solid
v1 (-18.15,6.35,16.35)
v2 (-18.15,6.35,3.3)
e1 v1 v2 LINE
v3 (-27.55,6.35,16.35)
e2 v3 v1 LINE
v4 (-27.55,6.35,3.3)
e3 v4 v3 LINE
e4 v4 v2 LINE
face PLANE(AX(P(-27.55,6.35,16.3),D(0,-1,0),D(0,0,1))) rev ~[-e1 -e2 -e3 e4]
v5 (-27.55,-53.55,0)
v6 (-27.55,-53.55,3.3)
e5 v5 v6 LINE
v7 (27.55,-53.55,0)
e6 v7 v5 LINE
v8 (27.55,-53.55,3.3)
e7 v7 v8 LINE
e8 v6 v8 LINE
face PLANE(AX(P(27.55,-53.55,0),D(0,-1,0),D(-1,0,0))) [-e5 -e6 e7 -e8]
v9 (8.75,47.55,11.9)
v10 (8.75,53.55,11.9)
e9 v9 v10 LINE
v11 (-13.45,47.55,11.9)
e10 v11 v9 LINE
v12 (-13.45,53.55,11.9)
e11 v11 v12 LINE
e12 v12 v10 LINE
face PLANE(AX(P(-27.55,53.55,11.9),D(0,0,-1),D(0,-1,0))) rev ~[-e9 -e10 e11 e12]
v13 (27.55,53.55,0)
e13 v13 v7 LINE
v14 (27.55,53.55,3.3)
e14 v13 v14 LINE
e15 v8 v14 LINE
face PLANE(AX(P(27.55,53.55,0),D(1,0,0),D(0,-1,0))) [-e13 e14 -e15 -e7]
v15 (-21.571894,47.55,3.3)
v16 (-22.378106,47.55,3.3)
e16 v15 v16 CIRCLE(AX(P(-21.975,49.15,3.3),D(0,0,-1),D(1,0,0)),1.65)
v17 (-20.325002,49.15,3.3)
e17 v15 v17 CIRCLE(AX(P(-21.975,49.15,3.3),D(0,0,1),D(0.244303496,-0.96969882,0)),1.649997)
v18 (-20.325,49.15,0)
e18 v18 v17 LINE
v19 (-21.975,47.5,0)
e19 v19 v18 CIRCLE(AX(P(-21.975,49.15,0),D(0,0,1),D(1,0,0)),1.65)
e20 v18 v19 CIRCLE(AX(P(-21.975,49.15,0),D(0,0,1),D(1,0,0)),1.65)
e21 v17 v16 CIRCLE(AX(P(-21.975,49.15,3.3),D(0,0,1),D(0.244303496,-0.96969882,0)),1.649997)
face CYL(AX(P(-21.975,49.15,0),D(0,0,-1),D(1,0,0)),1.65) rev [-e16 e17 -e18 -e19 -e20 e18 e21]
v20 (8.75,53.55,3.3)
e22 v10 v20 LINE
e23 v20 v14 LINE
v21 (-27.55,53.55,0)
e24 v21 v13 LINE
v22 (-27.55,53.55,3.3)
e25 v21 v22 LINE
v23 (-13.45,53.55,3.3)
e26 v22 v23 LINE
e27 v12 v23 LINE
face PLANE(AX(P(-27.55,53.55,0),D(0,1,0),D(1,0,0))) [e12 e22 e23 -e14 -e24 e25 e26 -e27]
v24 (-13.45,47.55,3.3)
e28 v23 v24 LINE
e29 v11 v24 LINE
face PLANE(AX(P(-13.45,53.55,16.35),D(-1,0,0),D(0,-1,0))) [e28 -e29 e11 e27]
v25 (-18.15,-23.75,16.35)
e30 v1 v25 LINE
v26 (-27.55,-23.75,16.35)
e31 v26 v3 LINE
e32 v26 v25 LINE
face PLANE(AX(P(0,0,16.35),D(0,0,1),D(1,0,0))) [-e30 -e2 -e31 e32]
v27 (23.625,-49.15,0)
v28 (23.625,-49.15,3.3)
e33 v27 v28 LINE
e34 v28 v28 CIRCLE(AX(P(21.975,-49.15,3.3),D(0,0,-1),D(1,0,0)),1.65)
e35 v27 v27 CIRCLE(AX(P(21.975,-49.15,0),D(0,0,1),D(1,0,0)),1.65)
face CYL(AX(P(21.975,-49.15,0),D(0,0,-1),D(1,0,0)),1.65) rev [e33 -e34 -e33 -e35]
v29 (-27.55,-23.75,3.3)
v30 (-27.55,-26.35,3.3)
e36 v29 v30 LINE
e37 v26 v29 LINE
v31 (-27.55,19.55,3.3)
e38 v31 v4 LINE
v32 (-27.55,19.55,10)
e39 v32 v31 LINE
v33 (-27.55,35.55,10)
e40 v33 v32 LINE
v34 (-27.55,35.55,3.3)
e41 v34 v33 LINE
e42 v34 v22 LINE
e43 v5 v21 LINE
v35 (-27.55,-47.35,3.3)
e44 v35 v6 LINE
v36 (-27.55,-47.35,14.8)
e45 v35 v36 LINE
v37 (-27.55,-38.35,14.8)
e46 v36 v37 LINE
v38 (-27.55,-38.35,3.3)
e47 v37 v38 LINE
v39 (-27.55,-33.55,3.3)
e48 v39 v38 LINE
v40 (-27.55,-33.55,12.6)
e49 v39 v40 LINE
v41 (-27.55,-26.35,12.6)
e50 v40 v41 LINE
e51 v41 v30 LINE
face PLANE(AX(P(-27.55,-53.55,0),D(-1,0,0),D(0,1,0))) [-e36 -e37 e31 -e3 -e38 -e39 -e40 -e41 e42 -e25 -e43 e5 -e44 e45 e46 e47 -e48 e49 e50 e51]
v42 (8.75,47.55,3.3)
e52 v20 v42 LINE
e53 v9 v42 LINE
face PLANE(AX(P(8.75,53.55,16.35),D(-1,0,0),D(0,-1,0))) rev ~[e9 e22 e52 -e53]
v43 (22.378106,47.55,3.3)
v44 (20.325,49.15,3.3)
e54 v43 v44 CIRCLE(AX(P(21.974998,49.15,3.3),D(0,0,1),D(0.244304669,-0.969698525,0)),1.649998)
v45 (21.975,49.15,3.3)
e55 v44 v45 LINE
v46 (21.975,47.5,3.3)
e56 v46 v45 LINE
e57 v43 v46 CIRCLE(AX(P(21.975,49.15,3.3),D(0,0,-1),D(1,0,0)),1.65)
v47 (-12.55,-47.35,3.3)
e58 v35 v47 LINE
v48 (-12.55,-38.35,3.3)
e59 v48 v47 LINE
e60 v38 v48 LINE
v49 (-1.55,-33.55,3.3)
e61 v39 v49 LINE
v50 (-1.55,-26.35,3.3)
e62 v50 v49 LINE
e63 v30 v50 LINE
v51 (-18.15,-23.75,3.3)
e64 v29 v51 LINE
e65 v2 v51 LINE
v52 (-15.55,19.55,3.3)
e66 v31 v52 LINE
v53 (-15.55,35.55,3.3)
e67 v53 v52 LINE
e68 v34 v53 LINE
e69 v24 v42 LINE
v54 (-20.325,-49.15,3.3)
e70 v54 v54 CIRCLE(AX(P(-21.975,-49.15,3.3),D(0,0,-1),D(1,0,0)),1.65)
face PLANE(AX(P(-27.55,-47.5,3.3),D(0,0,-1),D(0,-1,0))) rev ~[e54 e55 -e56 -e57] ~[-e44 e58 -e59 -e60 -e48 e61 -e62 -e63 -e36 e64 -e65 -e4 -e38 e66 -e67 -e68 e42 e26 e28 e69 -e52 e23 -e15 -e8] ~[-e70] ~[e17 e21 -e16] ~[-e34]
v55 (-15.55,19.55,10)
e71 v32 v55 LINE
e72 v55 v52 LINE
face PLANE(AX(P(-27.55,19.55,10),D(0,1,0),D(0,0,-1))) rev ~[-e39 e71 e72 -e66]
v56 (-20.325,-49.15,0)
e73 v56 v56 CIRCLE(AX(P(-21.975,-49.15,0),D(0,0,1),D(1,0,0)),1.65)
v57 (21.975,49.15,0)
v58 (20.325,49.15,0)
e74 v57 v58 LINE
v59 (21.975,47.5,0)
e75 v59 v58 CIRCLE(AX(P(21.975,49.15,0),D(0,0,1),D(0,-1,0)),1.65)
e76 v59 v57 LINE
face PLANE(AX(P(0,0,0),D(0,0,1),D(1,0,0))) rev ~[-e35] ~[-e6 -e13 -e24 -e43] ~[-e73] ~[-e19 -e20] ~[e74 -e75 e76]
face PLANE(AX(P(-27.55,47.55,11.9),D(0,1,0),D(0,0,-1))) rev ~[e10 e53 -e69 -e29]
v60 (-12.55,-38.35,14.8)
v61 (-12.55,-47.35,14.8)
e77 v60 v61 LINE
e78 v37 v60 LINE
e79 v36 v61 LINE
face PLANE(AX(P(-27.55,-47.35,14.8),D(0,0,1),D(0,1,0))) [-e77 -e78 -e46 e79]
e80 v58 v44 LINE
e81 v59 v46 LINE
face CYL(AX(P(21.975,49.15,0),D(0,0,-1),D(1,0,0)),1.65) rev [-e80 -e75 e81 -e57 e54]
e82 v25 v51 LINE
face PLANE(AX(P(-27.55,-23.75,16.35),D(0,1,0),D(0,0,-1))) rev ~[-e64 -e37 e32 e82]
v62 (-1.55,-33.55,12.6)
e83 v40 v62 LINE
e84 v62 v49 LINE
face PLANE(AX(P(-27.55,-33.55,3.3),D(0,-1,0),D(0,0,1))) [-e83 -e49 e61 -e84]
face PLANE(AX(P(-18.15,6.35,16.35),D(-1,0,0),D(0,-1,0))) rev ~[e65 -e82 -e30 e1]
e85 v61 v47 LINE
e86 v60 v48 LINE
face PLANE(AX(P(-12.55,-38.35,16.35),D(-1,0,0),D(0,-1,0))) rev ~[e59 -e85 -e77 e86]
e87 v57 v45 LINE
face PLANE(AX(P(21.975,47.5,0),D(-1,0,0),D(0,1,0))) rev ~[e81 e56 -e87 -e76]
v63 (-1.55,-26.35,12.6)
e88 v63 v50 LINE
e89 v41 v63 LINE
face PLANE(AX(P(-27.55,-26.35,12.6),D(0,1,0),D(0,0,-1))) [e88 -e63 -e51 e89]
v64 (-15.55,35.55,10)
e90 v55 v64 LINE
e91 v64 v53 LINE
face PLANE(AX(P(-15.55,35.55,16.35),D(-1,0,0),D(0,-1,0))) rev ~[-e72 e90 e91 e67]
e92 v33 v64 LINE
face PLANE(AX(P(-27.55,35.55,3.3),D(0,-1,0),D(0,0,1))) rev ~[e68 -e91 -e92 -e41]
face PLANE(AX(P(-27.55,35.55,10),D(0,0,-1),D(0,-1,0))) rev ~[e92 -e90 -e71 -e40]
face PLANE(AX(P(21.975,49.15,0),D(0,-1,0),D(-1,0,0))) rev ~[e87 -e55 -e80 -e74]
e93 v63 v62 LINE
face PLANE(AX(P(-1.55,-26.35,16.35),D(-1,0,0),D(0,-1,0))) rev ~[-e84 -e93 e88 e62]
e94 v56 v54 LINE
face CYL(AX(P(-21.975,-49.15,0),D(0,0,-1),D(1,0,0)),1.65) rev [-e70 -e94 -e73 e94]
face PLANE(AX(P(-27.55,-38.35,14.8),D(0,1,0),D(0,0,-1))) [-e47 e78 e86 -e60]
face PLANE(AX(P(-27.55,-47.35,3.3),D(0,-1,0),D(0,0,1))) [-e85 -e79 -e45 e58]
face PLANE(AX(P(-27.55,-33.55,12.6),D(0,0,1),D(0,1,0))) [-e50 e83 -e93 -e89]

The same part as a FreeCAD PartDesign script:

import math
import FreeCAD as App
import Part
import Sketcher

V = App.Vector
Q = App.Units.Quantity


def add_polygon(sketch, points):
    """Adds a closed chain of lines whose ends are joined by coincident constraints."""
    first, n = sketch.GeometryCount, len(points)
    for a, b in zip(points, points[1:] + points[:1]):
        sketch.addGeometry(Part.LineSegment(App.Vector(*a, 0), App.Vector(*b, 0)), False)
    for i in range(n):
        sketch.addConstraint(Sketcher.Constraint("Coincident", first + i, 2, first + (i + 1) % n, 1))

doc = App.newDocument("Part")
body = doc.addObject("PartDesign::Body", "Body")

# Sketch on XY plane
sketch1 = doc.addObject("Sketcher::SketchObject", "Sketch")
body.addObject(sketch1)
sketch1.AttachmentSupport = (doc.XY_Plane, [""])
sketch1.MapMode = "FlatFace"
add_polygon(sketch1, [(-27.6, -53.5), (27.6, -53.5), (27.6, 53.5), (-27.6, 53.5)])  # lines 0-3
sketch1.addGeometry(Part.Circle(V(-22, -49.1, 0), V(0, 0, 1), 1.6), False)  # 4
sketch1.addGeometry(Part.Circle(V(22, -49.1, 0), V(0, 0, 1), 1.6), False)  # 5
sketch1.addGeometry(Part.LineSegment(V(22, 47.5, 0), V(22, 49.1, 0)), False)  # 6
sketch1.addGeometry(Part.LineSegment(V(22, 49.1, 0), V(20.3, 49.1, 0)), False)  # 7
sketch1.addGeometry(Part.ArcOfCircle(Part.Circle(V(22, 49.1, 0), V(0, 0, 1), 1.6), math.radians(-90), math.radians(180)), False)  # 8
sketch1.addGeometry(Part.Circle(V(-22, 49.1, 0), V(0, 0, 1), 1.6), False)  # 9
sketch1.addConstraint([
    Sketcher.Constraint("Coincident", 6, 2, 7, 1),
    Sketcher.Constraint("Coincident", 7, 2, 8, 2),
    Sketcher.Constraint("Coincident", 8, 1, 6, 1),
    Sketcher.Constraint("Horizontal", 0),
    Sketcher.Constraint("Vertical", 1),
    Sketcher.Constraint("Horizontal", 2),
    Sketcher.Constraint("Vertical", 3),
    Sketcher.Constraint("Vertical", 6),
    Sketcher.Constraint("Horizontal", 7),
    Sketcher.Constraint("Coincident", 6, 2, 8, 3),
    Sketcher.Constraint("Equal", 4, 5),
    Sketcher.Constraint("Equal", 5, 8),
    Sketcher.Constraint("Equal", 8, 9),
    Sketcher.Constraint("Symmetric", 4, 3, 8, 3, -1, 1),
    Sketcher.Constraint("Symmetric", 5, 3, 9, 3, -1, 1),
    Sketcher.Constraint("Symmetric", 0, 2, 2, 2, -1, 1),
    Sketcher.Constraint("Symmetric", 4, 3, 5, 3, -2),
    Sketcher.Constraint("Diameter", 4, Q("3.3 mm")),
    Sketcher.Constraint("DistanceX", 0, 1, 0, 2, Q("55.1 mm")),
    Sketcher.Constraint("DistanceY", 1, 1, 1, 2, Q("107.1 mm")),
    Sketcher.Constraint("DistanceY", -1, 1, 8, 1, Q("47.5 mm")),
    Sketcher.Constraint("DistanceX", 9, 3, 7, 2, Q("42.3 mm")),
])
pad1 = doc.addObject("PartDesign::Pad", "Pad")
body.addObject(pad1)
pad1.Profile = sketch1
pad1.Length = 16.35

# Sketch on YZ plane
sketch2 = doc.addObject("Sketcher::SketchObject", "Sketch001")
body.addObject(sketch2)
sketch2.AttachmentSupport = (doc.YZ_Plane, [""])
sketch2.MapMode = "FlatFace"
sketch2.AttachmentOffset = App.Placement(V(0, 0, -27.55), App.Rotation())
add_polygon(sketch2, [(53.5, 16.4), (53.5, 11.9), (47.5, 11.9), (47.5, 3.3), (35.5, 3.3), (35.5, 10), (19.6, 10), (19.6, 3.3), (6.3, 3.3), (6.3, 16.4)])  # lines 0-9
add_polygon(sketch2, [(-53.5, 16.4), (-23.8, 16.4), (-23.8, 3.3), (-26.4, 3.3), (-26.4, 12.6), (-33.5, 12.6), (-33.5, 3.3), (-38.4, 3.3), (-38.4, 14.8), (-47.4, 14.8), (-47.4, 3.3), (-53.5, 3.3)])  # lines 10-21
sketch2.addConstraint([
    Sketcher.Constraint("Vertical", 0),
    Sketcher.Constraint("Horizontal", 1),
    Sketcher.Constraint("Vertical", 2),
    Sketcher.Constraint("Horizontal", 3),
    Sketcher.Constraint("Vertical", 4),
    Sketcher.Constraint("Horizontal", 5),
    Sketcher.Constraint("Vertical", 6),
    Sketcher.Constraint("Horizontal", 7),
    Sketcher.Constraint("Vertical", 8),
    Sketcher.Constraint("Horizontal", 9),
    Sketcher.Constraint("Horizontal", 10),
    Sketcher.Constraint("Vertical", 11),
    Sketcher.Constraint("Horizontal", 12),
    Sketcher.Constraint("Vertical", 13),
    Sketcher.Constraint("Horizontal", 14),
    Sketcher.Constraint("Vertical", 15),
    Sketcher.Constraint("Horizontal", 16),
    Sketcher.Constraint("Vertical", 17),
    Sketcher.Constraint("Horizontal", 18),
    Sketcher.Constraint("Vertical", 19),
    Sketcher.Constraint("Horizontal", 20),
    Sketcher.Constraint("Vertical", 21),
    Sketcher.Constraint("Symmetric", 9, 2, 21, 2, -2),
    Sketcher.Constraint("Horizontal", 3, 2, 6, 2),
    Sketcher.Constraint("Horizontal", 7, 2, 11, 2),
    Sketcher.Constraint("Horizontal", 12, 2, 15, 2),
    Sketcher.Constraint("Horizontal", 16, 2, 19, 2),
    Sketcher.Constraint("DistanceX", 1, 2, 1, 1, Q("6 mm")),
    Sketcher.Constraint("DistanceX", 5, 2, 5, 1, Q("16 mm")),
    Sketcher.Constraint("DistanceX", 18, 2, 18, 1, Q("9 mm")),
    Sketcher.Constraint("DistanceX", 9, 1, 9, 2, Q("47.2 mm")),
    Sketcher.Constraint("DistanceX", 14, 2, 14, 1, Q("7.2 mm")),
    Sketcher.Constraint("DistanceX", 20, 2, 20, 1, Q("6.2 mm")),
    Sketcher.Constraint("DistanceY", 2, 2, 2, 1, Q("8.6 mm")),
    Sketcher.Constraint("DistanceY", 4, 1, 4, 2, Q("6.7 mm")),
    Sketcher.Constraint("DistanceY", 13, 1, 13, 2, Q("9.3 mm")),
    Sketcher.Constraint("DistanceY", 17, 1, 17, 2, Q("11.5 mm")),
    Sketcher.Constraint("DistanceX", 3, 2, 0, 2, Q("18 mm")),
    Sketcher.Constraint("DistanceX", 20, 2, 15, 2, Q("20 mm")),
    Sketcher.Constraint("DistanceY", -1, 1, 2, 2, Q("3.3 mm")),
    Sketcher.Constraint("DistanceX", 10, 2, 8, 2, Q("30.1 mm")),
    Sketcher.Constraint("DistanceX", 10, 1, 10, 2, Q("29.8 mm")),
    Sketcher.Constraint("DistanceY", 0, 2, 0, 1, Q("4.45 mm")),
])
pocket1 = doc.addObject("PartDesign::Pocket", "Pocket")
body.addObject(pocket1)
pocket1.Profile = sketch2
pocket1.Type = "ThroughAll"
pocket1.Reversed = True

# Sketch on XY plane
sketch3 = doc.addObject("Sketcher::SketchObject", "Sketch002")
body.addObject(sketch3)
sketch3.AttachmentSupport = (doc.XY_Plane, [""])
sketch3.MapMode = "FlatFace"
sketch3.AttachmentOffset = App.Placement(V(0, 0, 16.35), App.Rotation())
sketch3.addGeometry(Part.LineSegment(V(-13.4, 53.5, 0), V(-27.6, 53.5, 0)), False)  # 0
sketch3.addGeometry(Part.LineSegment(V(-27.6, 53.5, 0), V(-27.6, 47.5, 0)), False)  # 1
sketch3.addGeometry(Part.LineSegment(V(-27.6, 47.5, 0), V(-22.4, 47.5, 0)), False)  # 2
sketch3.addGeometry(Part.ArcOfCircle(Part.Circle(V(-22, 49.1, 0), V(0, 0, 1), 1.6), math.radians(-76), math.radians(256)), False)  # 3
sketch3.addGeometry(Part.LineSegment(V(-21.6, 47.5, 0), V(-13.4, 47.5, 0)), False)  # 4
sketch3.addGeometry(Part.LineSegment(V(-13.4, 47.5, 0), V(-13.4, 53.5, 0)), False)  # 5
sketch3.addGeometry(Part.LineSegment(V(27.6, 53.5, 0), V(8.8, 53.5, 0)), False)  # 6
sketch3.addGeometry(Part.LineSegment(V(8.8, 53.5, 0), V(8.8, 47.5, 0)), False)  # 7
sketch3.addGeometry(Part.LineSegment(V(8.8, 47.5, 0), V(22, 47.5, 0)), False)  # 8
sketch3.addGeometry(Part.LineSegment(V(22, 47.5, 0), V(22, 49.1, 0)), False)  # 9
sketch3.addGeometry(Part.LineSegment(V(22, 49.1, 0), V(20.3, 49.1, 0)), False)  # 10
sketch3.addGeometry(Part.ArcOfCircle(Part.Circle(V(22, 49.1, 0), V(0, 0, 1), 1.6), math.radians(-76), math.radians(180)), False)  # 11
sketch3.addGeometry(Part.LineSegment(V(22.4, 47.5, 0), V(27.6, 47.5, 0)), False)  # 12
sketch3.addGeometry(Part.LineSegment(V(27.6, 47.5, 0), V(27.6, 53.5, 0)), False)  # 13
add_polygon(sketch3, [(27.6, 35.5), (-15.6, 35.5), (-15.6, 19.6), (27.6, 19.6)])  # lines 14-17
add_polygon(sketch3, [(27.6, 6.3), (-18.1, 6.3), (-18.1, -23.8), (27.6, -23.8)])  # lines 18-21
add_polygon(sketch3, [(-1.6, -26.4), (-1.6, -33.5), (27.6, -33.5), (27.6, -26.4)])  # lines 22-25
add_polygon(sketch3, [(27.6, -38.4), (-12.6, -38.4), (-12.6, -47.4), (27.6, -47.4)])  # lines 26-29
sketch3.addConstraint([
    Sketcher.Constraint("Coincident", 0, 2, 1, 1),
    Sketcher.Constraint("Coincident", 1, 2, 2, 1),
    Sketcher.Constraint("Coincident", 2, 2, 3, 2),
    Sketcher.Constraint("Coincident", 3, 1, 4, 1),
    Sketcher.Constraint("Coincident", 4, 2, 5, 1),
    Sketcher.Constraint("Coincident", 5, 2, 0, 1),
    Sketcher.Constraint("Coincident", 6, 2, 7, 1),
    Sketcher.Constraint("Coincident", 7, 2, 8, 1),
    Sketcher.Constraint("Coincident", 8, 2, 9, 1),
    Sketcher.Constraint("Coincident", 9, 2, 10, 1),
    Sketcher.Constraint("Coincident", 10, 2, 11, 2),
    Sketcher.Constraint("Coincident", 11, 1, 12, 1),
    Sketcher.Constraint("Coincident", 12, 2, 13, 1),
    Sketcher.Constraint("Coincident", 13, 2, 6, 1),
    Sketcher.Constraint("Horizontal", 0),
    Sketcher.Constraint("Vertical", 1),
    Sketcher.Constraint("Horizontal", 2),
    Sketcher.Constraint("Horizontal", 4),
    Sketcher.Constraint("Vertical", 5),
    Sketcher.Constraint("Horizontal", 6),
    Sketcher.Constraint("Vertical", 7),
    Sketcher.Constraint("Horizontal", 8),
    Sketcher.Constraint("Vertical", 9),
    Sketcher.Constraint("Horizontal", 10),
    Sketcher.Constraint("Horizontal", 12),
    Sketcher.Constraint("Vertical", 13),
    Sketcher.Constraint("Horizontal", 14),
    Sketcher.Constraint("Vertical", 15),
    Sketcher.Constraint("Horizontal", 16),
    Sketcher.Constraint("Vertical", 17),
    Sketcher.Constraint("Horizontal", 18),
    Sketcher.Constraint("Vertical", 19),
    Sketcher.Constraint("Horizontal", 20),
    Sketcher.Constraint("Vertical", 21),
    Sketcher.Constraint("Vertical", 22),
    Sketcher.Constraint("Horizontal", 23),
    Sketcher.Constraint("Vertical", 24),
    Sketcher.Constraint("Horizontal", 25),
    Sketcher.Constraint("Horizontal", 26),
    Sketcher.Constraint("Vertical", 27),
    Sketcher.Constraint("Horizontal", 28),
    Sketcher.Constraint("Vertical", 29),
    Sketcher.Constraint("Coincident", 9, 2, 11, 3),
    Sketcher.Constraint("Equal", 3, 11),
    Sketcher.Constraint("Symmetric", 3, 3, 11, 3, -2),
    Sketcher.Constraint("Symmetric", 1, 2, 12, 2, -2),
    Sketcher.Constraint("Horizontal", 2, 2, 3, 1),
    Sketcher.Constraint("Horizontal", 5, 2, 6, 2),
    Sketcher.Constraint("Horizontal", 4, 2, 7, 2),
    Sketcher.Constraint("Vertical", 13, 2, 16, 2),
    Sketcher.Constraint("Vertical", 17, 2, 20, 2),
    Sketcher.Constraint("Vertical", 21, 2, 23, 2),
    Sketcher.Constraint("Vertical", 24, 2, 28, 2),
    Sketcher.Constraint("DistanceX", 0, 2, 0, 1, Q("14.1 mm")),
    Sketcher.Constraint("DistanceX", 6, 2, 6, 1, Q("18.8 mm")),
    Sketcher.Constraint("DistanceY", 14, 2, 4, 2, Q("12 mm")),
    Sketcher.Constraint("DistanceX", 1, 2, 14, 2, Q("12 mm")),
    Sketcher.Constraint("DistanceY", 26, 2, 25, 2, Q("12 mm")),
    Sketcher.Constraint("DistanceY", 1, 2, 1, 1, Q("6 mm")),
    Sketcher.Constraint("DistanceY", 15, 2, 15, 1, Q("16 mm")),
    Sketcher.Constraint("DistanceY", 27, 2, 27, 1, Q("9 mm")),
    Sketcher.Constraint("Radius", 3, Q("1.65 mm")),
    Sketcher.Constraint("DistanceX", 14, 2, 14, 1, Q("43.1 mm")),
    Sketcher.Constraint("DistanceX", 18, 2, 18, 1, Q("45.7 mm")),
    Sketcher.Constraint("DistanceX", 23, 1, 23, 2, Q("29.1 mm")),
    Sketcher.Constraint("DistanceX", 26, 2, 26, 1, Q("40.1 mm")),
    Sketcher.Constraint("DistanceY", 9, 1, 9, 2, Q("1.6 mm")),
    Sketcher.Constraint("DistanceY", 19, 2, 19, 1, Q("30.1 mm")),
    Sketcher.Constraint("DistanceY", 22, 2, 22, 1, Q("7.2 mm")),
    Sketcher.Constraint("DistanceY", 18, 2, 15, 2, Q("13.2 mm")),
    Sketcher.Constraint("DistanceY", 22, 2, 19, 2, Q("9.8 mm")),
    Sketcher.Constraint("DistanceX", 2, 1, 2, 2, Q("5.172 mm")),
    Sketcher.Constraint("DistanceY", -1, 1, 3, 3, Q("49.15 mm")),
])
pocket2 = doc.addObject("PartDesign::Pocket", "Pocket001")
body.addObject(pocket2)
pocket2.Profile = sketch3
pocket2.Length = 13.05

doc.recompute()
